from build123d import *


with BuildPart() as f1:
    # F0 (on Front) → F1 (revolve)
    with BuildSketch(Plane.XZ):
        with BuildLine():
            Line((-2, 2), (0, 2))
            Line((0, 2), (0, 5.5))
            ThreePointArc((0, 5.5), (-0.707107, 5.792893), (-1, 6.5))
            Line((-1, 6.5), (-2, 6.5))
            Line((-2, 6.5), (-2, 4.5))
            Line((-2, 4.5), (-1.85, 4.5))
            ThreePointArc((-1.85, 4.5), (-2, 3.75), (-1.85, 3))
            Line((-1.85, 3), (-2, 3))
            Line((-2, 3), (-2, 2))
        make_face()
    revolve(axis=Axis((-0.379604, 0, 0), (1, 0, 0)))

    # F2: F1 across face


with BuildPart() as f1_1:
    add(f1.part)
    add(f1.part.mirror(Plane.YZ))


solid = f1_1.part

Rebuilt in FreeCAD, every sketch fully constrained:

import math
import FreeCAD as App
import Part
import Sketcher
Q = App.Units.Quantity

doc = App.newDocument("Part")
params = doc.addObject("Spreadsheet::Sheet", "Params")
for row, (alias, value) in enumerate([
    ("sketch1_radius", "0.999999 mm"),
    ("sketch1_width", "2 mm"),
    ("sketch1_radius2", "1.95 mm"),
    ("sketch1_height", "3.5 mm"),
    ("sketch1_width2", "0.15 mm"),
    ("revolution_angle", "360 deg"),
], start=1):
    params.set(f"A{row}", alias)
    params.set(f"B{row}", "=" + value)
    params.setAlias(f"B{row}", alias)

body = doc.addObject("PartDesign::Body", "Body")

# Sketch on XZ plane
sketch1 = body.newObject("Sketcher::SketchObject", "Sketch")
sketch1.AttachmentSupport = (doc.getObject("XZ_Plane"), [""])
sketch1.MapMode = "FlatFace"
sketch1.addGeometry([
    Part.LineSegment(App.Vector(-2, 2, 0), App.Vector(0, 2, 0)),  # 0
    Part.LineSegment(App.Vector(0, 2, 0), App.Vector(0, 5.5, 0)),  # 1
    Part.ArcOfCircle(Part.Circle(App.Vector(0, 6.5, 0), App.Vector(0, 0, 1), 1), math.radians(180), math.radians(270)),  # 2
    Part.LineSegment(App.Vector(-1, 6.5, 0), App.Vector(-2, 6.5, 0)),  # 3
    Part.LineSegment(App.Vector(-2, 6.5, 0), App.Vector(-2, 4.5, 0)),  # 4
    Part.LineSegment(App.Vector(-2, 4.5, 0), App.Vector(-1.85, 4.5, 0)),  # 5
    Part.ArcOfCircle(Part.Circle(App.Vector(-0.05, 3.75, 0), App.Vector(0, 0, 1), 1.95), math.radians(157), math.radians(203)),  # 6
    Part.LineSegment(App.Vector(-1.85, 3, 0), App.Vector(-2, 3, 0)),  # 7
    Part.LineSegment(App.Vector(-2, 3, 0), App.Vector(-2, 2, 0)),  # 8
], False)
sketch1.addConstraint([
    Sketcher.Constraint("Coincident", 0, 2, 1, 1),
    Sketcher.Constraint("Coincident", 1, 2, 2, 2),
    Sketcher.Constraint("Coincident", 2, 1, 3, 1),
    Sketcher.Constraint("Coincident", 3, 2, 4, 1),
    Sketcher.Constraint("Coincident", 4, 2, 5, 1),
    Sketcher.Constraint("Coincident", 5, 2, 6, 1),
    Sketcher.Constraint("Coincident", 6, 2, 7, 1),
    Sketcher.Constraint("Coincident", 7, 2, 8, 1),
    Sketcher.Constraint("Coincident", 8, 2, 0, 1),
    Sketcher.Constraint("Horizontal", 0),
    Sketcher.Constraint("Vertical", 1),
    Sketcher.Constraint("Horizontal", 3),
    Sketcher.Constraint("Vertical", 4),
    Sketcher.Constraint("Horizontal", 5),
    Sketcher.Constraint("Horizontal", 7),
    Sketcher.Constraint("Vertical", 8),
    Sketcher.Constraint("PointOnObject", 2, 3, -2),
    Sketcher.Constraint("PointOnObject", 0, 2, -2),
    Sketcher.Constraint("Vertical", 5, 2, 6, 2),
    Sketcher.Constraint("Vertical", 4, 2, 7, 2),
    Sketcher.Constraint("Equal", 0, 4),
    Sketcher.Constraint("Equal", 3, 8),
    Sketcher.Constraint("Radius", 2, Q("0.999999 mm")),
    Sketcher.Constraint("DistanceX", 0, 1, 0, 2, Q("2 mm")),
    Sketcher.Constraint("Radius", 6, Q("1.95 mm")),
    Sketcher.Constraint("DistanceY", 1, 1, 1, 2, Q("3.5 mm")),
    Sketcher.Constraint("DistanceY", -1, 1, 0, 2, Q("2 mm")),
    Sketcher.Constraint("DistanceY", 1, 2, 2, 1, Q("1 mm")),
    Sketcher.Constraint("DistanceX", 5, 1, 5, 2, Q("0.15 mm")),
])
sketch1.setExpression("Constraints[22]", "Params.sketch1_radius")
sketch1.setExpression("Constraints[23]", "Params.sketch1_width")
sketch1.setExpression("Constraints[24]", "Params.sketch1_radius2")
sketch1.setExpression("Constraints[25]", "Params.sketch1_height")
sketch1.setExpression("Constraints[28]", "Params.sketch1_width2")
revolution = body.newObject("PartDesign::Revolution", "Revolution")
revolution.Profile = sketch1
revolution.ReferenceAxis = (sketch1, ["H_Axis"])
revolution.setExpression("Angle", "Params.revolution_angle")
body2 = doc.addObject("PartDesign::Body", "Body001")
doc.recompute()

body2.BaseFeature = body
doc.recompute()

mirroring = doc.addObject("Part::Mirroring", "Mirroring")
mirroring.Source = body
mirroring.Base = App.Vector(0, 0, 0)
mirroring.Normal = App.Vector(1, 0, 0)
body3 = doc.addObject("PartDesign::Body", "Body002")
body3.BaseFeature = mirroring
boolean = body2.newObject("PartDesign::Boolean", "Boolean")
boolean.Type = "Fuse"
boolean.addObjects([body3])
doc.recompute()
mirroring.Visibility = False

doc.recompute()
